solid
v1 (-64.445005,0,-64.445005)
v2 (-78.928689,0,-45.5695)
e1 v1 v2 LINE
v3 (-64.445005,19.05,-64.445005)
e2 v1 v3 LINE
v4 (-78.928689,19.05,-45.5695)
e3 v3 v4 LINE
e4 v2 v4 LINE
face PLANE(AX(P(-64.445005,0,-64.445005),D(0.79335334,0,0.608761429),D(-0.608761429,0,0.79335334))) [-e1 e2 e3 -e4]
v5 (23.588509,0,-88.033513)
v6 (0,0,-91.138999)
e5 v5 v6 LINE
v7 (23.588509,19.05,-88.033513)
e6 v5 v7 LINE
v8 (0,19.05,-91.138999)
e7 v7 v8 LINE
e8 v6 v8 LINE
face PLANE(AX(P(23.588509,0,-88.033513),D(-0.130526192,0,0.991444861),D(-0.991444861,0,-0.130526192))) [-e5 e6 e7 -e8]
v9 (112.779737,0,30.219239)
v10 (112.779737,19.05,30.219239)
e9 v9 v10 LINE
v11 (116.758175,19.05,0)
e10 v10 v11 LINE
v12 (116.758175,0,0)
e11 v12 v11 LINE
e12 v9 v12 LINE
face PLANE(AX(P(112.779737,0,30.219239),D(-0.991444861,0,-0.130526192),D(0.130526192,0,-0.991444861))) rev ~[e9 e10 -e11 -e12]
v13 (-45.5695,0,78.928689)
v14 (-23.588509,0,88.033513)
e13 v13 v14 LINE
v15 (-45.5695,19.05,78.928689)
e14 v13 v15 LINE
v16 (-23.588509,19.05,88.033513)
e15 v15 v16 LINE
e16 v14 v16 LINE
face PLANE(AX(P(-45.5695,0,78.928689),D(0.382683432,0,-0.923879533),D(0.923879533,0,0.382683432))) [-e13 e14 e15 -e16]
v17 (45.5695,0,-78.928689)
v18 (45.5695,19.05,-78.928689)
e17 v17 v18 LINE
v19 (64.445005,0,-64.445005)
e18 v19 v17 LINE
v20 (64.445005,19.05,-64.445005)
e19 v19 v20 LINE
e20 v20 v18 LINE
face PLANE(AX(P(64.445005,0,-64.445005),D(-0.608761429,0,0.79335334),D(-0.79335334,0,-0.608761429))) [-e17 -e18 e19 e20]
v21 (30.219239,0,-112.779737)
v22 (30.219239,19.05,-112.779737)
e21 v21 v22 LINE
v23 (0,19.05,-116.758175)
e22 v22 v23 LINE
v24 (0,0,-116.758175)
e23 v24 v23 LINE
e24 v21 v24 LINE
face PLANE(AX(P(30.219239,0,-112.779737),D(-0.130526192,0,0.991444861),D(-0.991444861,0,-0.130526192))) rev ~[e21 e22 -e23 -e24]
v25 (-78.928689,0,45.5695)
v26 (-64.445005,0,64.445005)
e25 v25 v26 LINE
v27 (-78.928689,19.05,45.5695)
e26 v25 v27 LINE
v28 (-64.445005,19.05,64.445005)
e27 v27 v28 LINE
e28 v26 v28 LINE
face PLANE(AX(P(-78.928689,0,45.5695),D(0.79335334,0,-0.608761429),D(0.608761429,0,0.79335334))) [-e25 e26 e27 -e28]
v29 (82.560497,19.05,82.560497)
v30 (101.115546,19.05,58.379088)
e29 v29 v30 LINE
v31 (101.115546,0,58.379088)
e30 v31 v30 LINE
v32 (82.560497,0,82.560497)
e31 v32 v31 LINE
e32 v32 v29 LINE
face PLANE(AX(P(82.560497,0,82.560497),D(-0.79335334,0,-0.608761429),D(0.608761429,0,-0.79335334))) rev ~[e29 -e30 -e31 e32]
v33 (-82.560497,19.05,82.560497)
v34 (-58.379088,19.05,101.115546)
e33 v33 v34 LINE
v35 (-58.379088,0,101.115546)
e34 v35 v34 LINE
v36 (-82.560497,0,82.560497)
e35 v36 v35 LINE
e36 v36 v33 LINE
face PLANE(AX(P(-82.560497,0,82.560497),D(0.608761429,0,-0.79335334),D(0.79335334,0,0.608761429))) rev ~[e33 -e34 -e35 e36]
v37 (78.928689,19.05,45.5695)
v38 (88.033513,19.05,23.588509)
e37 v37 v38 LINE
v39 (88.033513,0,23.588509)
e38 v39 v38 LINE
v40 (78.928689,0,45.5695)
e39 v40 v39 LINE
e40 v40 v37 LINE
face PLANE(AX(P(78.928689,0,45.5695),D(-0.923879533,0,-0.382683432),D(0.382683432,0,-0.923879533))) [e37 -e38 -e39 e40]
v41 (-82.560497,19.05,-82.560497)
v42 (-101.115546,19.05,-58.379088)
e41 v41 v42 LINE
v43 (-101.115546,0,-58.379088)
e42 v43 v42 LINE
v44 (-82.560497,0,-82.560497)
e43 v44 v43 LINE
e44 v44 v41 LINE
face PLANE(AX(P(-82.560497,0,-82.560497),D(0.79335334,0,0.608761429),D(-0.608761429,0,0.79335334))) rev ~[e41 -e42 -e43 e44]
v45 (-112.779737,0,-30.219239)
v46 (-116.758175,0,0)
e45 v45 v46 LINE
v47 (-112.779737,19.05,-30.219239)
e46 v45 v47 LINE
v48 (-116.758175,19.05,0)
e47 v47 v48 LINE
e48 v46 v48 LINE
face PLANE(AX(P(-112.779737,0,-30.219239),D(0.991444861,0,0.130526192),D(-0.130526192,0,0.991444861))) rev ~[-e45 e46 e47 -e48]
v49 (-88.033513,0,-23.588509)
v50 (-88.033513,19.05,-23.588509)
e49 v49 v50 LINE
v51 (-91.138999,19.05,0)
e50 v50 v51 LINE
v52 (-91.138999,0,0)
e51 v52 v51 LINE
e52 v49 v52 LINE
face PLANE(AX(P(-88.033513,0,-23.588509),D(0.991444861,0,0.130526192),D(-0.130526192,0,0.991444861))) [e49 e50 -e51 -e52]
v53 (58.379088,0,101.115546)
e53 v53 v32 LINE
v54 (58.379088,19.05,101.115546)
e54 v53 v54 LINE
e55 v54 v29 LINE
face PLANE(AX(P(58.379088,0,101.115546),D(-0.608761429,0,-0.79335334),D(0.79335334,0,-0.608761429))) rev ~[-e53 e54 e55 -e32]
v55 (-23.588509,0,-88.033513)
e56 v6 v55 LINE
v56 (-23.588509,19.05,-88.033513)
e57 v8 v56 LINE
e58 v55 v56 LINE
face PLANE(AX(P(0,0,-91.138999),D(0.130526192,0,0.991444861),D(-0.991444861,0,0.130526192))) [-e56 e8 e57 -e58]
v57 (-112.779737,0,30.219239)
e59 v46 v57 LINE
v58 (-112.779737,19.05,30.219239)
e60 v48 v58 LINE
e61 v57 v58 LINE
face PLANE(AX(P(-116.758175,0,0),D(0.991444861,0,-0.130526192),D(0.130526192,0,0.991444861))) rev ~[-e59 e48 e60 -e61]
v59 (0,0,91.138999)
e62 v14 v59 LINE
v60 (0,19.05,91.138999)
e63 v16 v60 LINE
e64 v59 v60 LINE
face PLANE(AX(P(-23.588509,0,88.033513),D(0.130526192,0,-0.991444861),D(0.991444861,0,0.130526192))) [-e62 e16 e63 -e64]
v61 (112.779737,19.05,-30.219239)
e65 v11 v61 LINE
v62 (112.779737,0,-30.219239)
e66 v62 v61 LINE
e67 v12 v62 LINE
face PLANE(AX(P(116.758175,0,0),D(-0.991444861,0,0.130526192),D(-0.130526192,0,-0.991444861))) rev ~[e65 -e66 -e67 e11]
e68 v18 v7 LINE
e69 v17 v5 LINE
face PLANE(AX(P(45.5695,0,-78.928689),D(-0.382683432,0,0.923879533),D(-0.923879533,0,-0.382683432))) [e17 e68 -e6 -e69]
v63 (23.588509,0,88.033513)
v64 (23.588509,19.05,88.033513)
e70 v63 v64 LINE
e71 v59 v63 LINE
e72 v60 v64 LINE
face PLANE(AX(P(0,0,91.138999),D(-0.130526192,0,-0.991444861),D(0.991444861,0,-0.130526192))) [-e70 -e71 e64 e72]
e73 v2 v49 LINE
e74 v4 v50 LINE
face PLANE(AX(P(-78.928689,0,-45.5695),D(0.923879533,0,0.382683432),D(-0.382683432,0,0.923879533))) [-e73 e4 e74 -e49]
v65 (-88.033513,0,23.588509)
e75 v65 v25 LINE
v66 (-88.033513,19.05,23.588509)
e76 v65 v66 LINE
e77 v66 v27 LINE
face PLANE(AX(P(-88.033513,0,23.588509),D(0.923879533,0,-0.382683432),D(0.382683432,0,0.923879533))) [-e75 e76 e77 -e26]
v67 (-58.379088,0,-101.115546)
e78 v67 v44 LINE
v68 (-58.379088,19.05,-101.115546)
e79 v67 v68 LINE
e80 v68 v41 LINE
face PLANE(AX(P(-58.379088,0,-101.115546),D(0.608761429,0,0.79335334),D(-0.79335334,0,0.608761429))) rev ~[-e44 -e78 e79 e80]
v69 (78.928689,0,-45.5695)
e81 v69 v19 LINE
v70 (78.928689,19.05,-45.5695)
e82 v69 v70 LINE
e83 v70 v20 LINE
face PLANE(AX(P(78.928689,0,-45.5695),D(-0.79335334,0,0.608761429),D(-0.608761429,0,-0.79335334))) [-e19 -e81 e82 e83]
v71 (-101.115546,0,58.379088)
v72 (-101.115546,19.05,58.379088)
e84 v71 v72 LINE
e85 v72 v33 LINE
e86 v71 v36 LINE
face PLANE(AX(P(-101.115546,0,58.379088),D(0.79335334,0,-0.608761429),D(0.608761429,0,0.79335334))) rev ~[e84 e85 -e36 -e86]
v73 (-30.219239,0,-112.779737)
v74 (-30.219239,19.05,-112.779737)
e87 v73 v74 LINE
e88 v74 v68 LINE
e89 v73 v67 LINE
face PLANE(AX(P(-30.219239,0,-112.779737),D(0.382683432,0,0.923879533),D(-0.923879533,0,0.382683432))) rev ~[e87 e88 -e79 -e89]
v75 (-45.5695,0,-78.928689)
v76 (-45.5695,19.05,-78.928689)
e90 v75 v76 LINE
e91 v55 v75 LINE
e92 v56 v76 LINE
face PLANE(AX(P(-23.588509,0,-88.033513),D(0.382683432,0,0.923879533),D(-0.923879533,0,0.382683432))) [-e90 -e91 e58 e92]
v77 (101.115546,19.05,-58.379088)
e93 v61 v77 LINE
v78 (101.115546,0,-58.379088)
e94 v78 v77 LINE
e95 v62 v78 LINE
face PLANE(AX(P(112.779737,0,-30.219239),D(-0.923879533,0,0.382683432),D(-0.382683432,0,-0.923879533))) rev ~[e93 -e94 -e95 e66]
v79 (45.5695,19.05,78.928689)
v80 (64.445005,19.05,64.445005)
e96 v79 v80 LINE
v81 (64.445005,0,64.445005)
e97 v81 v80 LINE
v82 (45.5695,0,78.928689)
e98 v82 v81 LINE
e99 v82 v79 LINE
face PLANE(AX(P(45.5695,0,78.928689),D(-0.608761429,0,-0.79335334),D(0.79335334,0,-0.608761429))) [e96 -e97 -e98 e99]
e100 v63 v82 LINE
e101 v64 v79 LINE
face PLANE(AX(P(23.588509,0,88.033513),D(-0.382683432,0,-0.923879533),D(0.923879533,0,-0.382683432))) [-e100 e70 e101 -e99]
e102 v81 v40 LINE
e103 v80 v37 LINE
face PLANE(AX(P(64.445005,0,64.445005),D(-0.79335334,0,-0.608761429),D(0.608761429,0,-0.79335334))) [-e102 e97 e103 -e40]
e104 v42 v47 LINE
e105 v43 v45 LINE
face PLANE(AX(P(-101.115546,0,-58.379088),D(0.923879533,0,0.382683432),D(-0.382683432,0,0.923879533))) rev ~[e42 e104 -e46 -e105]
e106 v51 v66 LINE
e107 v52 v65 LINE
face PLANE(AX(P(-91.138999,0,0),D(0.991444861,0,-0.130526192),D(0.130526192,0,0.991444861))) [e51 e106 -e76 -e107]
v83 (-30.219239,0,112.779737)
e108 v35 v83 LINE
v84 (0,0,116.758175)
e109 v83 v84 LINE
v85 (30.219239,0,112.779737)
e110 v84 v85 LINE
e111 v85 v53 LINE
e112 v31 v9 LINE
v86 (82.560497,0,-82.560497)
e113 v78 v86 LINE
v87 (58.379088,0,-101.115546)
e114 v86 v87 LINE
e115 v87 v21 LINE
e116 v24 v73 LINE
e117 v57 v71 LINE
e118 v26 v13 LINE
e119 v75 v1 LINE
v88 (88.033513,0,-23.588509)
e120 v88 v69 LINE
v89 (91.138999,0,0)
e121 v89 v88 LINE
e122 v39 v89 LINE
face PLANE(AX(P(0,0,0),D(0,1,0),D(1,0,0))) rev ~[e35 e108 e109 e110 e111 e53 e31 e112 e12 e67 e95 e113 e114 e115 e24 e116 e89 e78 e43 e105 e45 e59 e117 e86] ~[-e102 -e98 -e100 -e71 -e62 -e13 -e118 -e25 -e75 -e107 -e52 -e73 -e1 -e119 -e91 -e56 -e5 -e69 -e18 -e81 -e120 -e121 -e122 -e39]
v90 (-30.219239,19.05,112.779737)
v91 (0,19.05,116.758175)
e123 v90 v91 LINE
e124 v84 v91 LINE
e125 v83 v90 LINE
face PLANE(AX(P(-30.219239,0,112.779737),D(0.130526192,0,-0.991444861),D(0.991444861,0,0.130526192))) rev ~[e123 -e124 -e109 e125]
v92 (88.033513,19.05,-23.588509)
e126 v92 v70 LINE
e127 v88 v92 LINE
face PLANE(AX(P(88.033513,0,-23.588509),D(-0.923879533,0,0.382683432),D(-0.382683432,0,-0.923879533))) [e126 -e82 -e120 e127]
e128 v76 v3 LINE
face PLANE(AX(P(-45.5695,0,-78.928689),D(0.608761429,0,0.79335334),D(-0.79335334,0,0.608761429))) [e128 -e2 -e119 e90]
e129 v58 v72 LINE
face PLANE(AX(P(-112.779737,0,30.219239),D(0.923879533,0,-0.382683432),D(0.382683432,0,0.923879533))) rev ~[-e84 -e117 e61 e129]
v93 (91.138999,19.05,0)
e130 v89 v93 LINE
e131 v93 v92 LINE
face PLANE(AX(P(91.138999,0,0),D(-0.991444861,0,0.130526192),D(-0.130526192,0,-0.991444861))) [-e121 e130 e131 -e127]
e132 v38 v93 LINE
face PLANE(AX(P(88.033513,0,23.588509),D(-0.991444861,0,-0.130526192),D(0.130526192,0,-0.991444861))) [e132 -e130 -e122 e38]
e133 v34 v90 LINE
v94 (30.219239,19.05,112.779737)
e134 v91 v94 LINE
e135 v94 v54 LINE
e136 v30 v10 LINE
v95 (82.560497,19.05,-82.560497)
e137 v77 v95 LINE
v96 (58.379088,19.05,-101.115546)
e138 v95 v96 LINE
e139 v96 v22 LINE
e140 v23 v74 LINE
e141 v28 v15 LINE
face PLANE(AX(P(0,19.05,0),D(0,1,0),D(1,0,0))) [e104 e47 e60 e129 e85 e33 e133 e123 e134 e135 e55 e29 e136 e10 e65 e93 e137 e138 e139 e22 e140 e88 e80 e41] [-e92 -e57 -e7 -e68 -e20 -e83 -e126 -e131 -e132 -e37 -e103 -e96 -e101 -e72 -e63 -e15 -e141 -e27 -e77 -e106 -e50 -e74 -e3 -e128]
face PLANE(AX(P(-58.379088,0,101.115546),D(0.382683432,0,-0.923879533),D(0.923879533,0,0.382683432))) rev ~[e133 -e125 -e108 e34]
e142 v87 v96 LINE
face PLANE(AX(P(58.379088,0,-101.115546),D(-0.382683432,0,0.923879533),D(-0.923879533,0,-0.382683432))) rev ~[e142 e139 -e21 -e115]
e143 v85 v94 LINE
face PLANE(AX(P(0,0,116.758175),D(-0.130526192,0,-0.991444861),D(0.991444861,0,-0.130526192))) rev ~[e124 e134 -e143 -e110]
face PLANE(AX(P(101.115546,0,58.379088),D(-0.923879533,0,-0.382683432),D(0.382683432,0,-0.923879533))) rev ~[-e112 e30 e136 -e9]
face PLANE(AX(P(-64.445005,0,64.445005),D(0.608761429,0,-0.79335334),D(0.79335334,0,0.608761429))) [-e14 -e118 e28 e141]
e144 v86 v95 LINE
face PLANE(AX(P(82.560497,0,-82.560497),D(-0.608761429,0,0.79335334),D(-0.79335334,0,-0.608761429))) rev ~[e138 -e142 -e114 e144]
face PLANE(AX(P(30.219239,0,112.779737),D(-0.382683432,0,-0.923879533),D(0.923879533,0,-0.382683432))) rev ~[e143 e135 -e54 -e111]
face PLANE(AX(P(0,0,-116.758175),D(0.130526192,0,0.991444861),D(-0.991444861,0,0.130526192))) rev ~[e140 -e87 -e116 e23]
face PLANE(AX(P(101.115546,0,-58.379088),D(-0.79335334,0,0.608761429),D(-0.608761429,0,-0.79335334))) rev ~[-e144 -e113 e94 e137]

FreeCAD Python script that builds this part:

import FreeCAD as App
import Part
import Sketcher
Q = App.Units.Quantity


def add_polygon(sketch, points):
    """Adds a closed chain of lines whose ends are joined by coincident constraints."""
    first, n = sketch.GeometryCount, len(points)
    for a, b in zip(points, points[1:] + points[:1]):
        sketch.addGeometry(Part.LineSegment(App.Vector(*a, 0), App.Vector(*b, 0)), False)
    for i in range(n):
        sketch.addConstraint(Sketcher.Constraint("Coincident", first + i, 2, first + (i + 1) % n, 1))

doc = App.newDocument("Part")
body = doc.addObject("PartDesign::Body", "Body")

# Sketch on XZ plane
sketch1 = doc.addObject("Sketcher::SketchObject", "Sketch")
body.addObject(sketch1)
sketch1.AttachmentSupport = (doc.XZ_Plane, [""])
sketch1.MapMode = "FlatFace"
add_polygon(sketch1, [(-117, 0), (-113, 30), (-101, 58), (-83, 83), (-58, 101), (-30, 113), (0, 117), (30, 113), (58, 101), (83, 83), (101, 58), (113, 30), (117, 0), (113, -30), (101, -58), (83, -83), (58, -101), (30, -113), (0, -117), (-30, -113), (-58, -101), (-83, -83), (-101, -58), (-113, -30)])  # lines 0-23
add_polygon(sketch1, [(-88, 24), (-91, 0), (-88, -24), (-79, -46), (-64, -64), (-46, -79), (-24, -88), (0, -91), (24, -88), (46, -79), (64, -64), (79, -46), (88, -24), (91, 0), (88, 24), (79, 46), (64, 64), (46, 79), (24, 88), (0, 91), (-24, 88), (-46, 79), (-64, 64), (-79, 46)])  # lines 24-47
sketch1.addConstraint([
    Sketcher.Constraint("Symmetric", 0, 2, 12, 2, -1, 1),
    Sketcher.Constraint("Symmetric", 1, 2, 13, 2, -1, 1),
    Sketcher.Constraint("Symmetric", 2, 2, 14, 2, -1, 1),
    Sketcher.Constraint("Symmetric", 3, 2, 15, 2, -1, 1),
    Sketcher.Constraint("Symmetric", 4, 2, 16, 2, -1, 1),
    Sketcher.Constraint("Symmetric", 5, 2, 17, 2, -1, 1),
    Sketcher.Constraint("Symmetric", 6, 2, 18, 2, -1, 1),
    Sketcher.Constraint("Symmetric", 7, 2, 19, 2, -1, 1),
    Sketcher.Constraint("Symmetric", 8, 2, 20, 2, -1, 1),
    Sketcher.Constraint("Symmetric", 9, 2, 21, 2, -1, 1),
    Sketcher.Constraint("Symmetric", 10, 2, 22, 2, -1, 1),
    Sketcher.Constraint("Symmetric", 11, 2, 23, 2, -1, 1),
    Sketcher.Constraint("Symmetric", 24, 2, 36, 2, -1, 1),
    Sketcher.Constraint("Symmetric", 25, 2, 37, 2, -1, 1),
    Sketcher.Constraint("Symmetric", 26, 2, 38, 2, -1, 1),
    Sketcher.Constraint("Symmetric", 27, 2, 39, 2, -1, 1),
    Sketcher.Constraint("Symmetric", 28, 2, 40, 2, -1, 1),
    Sketcher.Constraint("Symmetric", 29, 2, 41, 2, -1, 1),
    Sketcher.Constraint("Symmetric", 30, 2, 42, 2, -1, 1),
    Sketcher.Constraint("Symmetric", 31, 2, 43, 2, -1, 1),
    Sketcher.Constraint("Symmetric", 32, 2, 44, 2, -1, 1),
    Sketcher.Constraint("Symmetric", 33, 2, 45, 2, -1, 1),
    Sketcher.Constraint("Symmetric", 34, 2, 46, 2, -1, 1),
    Sketcher.Constraint("Symmetric", 35, 2, 47, 2, -1, 1),
    Sketcher.Constraint("Symmetric", 4, 2, 6, 2, -2),
    Sketcher.Constraint("Symmetric", 3, 2, 7, 2, -2),
    Sketcher.Constraint("Symmetric", 2, 2, 8, 2, -2),
    Sketcher.Constraint("Symmetric", 1, 2, 9, 2, -2),
    Sketcher.Constraint("Symmetric", 0, 2, 10, 2, -2),
    Sketcher.Constraint("Symmetric", 29, 2, 31, 2, -2),
    Sketcher.Constraint("Symmetric", 28, 2, 32, 2, -2),
    Sketcher.Constraint("Symmetric", 27, 2, 33, 2, -2),
    Sketcher.Constraint("Symmetric", 26, 2, 34, 2, -2),
    Sketcher.Constraint("Symmetric", 25, 2, 35, 2, -2),
    Sketcher.Constraint("PointOnObject", 5, 2, -2),
    Sketcher.Constraint("PointOnObject", 11, 2, -1),
    Sketcher.Constraint("PointOnObject", 24, 2, -1),
    Sketcher.Constraint("PointOnObject", 30, 2, -2),
    Sketcher.Constraint("Perpendicular", 0, 6),
    Sketcher.Constraint("Perpendicular", 1, 7),
    Sketcher.Constraint("Perpendicular", 2, 8),
    Sketcher.Constraint("Perpendicular", 18, 24),
    Sketcher.Constraint("Parallel", 22, 26),
    Sketcher.Constraint("Parallel", 21, 27),
    Sketcher.Constraint("Parallel", 20, 28),
    Sketcher.Constraint("Parallel", 19, 29),
    Sketcher.Constraint("Perpendicular", 24, 30),
    Sketcher.Constraint("Equal", 0, 1),
    Sketcher.Constraint("Equal", 1, 2),
    Sketcher.Constraint("Equal", 2, 3),
    Sketcher.Constraint("Equal", 3, 4),
    Sketcher.Constraint("Equal", 4, 5),
    Sketcher.Constraint("Equal", 25, 26),
    Sketcher.Constraint("Equal", 26, 27),
    Sketcher.Constraint("Equal", 27, 28),
    Sketcher.Constraint("Equal", 28, 29),
    Sketcher.Constraint("Equal", 29, 30),
    Sketcher.Constraint("Distance", 0, Q("1.2 in")),
    Sketcher.Constraint("Angle", 0, Q("82.5 deg")),
    Sketcher.Constraint("Angle", 1, Q("67.5 deg")),
    Sketcher.Constraint("Angle", 2, Q("52.5 deg")),
    Sketcher.Constraint("DistanceX", 24, 2, -1, 1, Q("91.138999 mm")),
])
pad1 = doc.addObject("PartDesign::Pad", "Pad")
body.addObject(pad1)
pad1.Profile = sketch1
pad1.Length = Q("0.75 in")
pad1.Reversed = True

doc.recompute()
